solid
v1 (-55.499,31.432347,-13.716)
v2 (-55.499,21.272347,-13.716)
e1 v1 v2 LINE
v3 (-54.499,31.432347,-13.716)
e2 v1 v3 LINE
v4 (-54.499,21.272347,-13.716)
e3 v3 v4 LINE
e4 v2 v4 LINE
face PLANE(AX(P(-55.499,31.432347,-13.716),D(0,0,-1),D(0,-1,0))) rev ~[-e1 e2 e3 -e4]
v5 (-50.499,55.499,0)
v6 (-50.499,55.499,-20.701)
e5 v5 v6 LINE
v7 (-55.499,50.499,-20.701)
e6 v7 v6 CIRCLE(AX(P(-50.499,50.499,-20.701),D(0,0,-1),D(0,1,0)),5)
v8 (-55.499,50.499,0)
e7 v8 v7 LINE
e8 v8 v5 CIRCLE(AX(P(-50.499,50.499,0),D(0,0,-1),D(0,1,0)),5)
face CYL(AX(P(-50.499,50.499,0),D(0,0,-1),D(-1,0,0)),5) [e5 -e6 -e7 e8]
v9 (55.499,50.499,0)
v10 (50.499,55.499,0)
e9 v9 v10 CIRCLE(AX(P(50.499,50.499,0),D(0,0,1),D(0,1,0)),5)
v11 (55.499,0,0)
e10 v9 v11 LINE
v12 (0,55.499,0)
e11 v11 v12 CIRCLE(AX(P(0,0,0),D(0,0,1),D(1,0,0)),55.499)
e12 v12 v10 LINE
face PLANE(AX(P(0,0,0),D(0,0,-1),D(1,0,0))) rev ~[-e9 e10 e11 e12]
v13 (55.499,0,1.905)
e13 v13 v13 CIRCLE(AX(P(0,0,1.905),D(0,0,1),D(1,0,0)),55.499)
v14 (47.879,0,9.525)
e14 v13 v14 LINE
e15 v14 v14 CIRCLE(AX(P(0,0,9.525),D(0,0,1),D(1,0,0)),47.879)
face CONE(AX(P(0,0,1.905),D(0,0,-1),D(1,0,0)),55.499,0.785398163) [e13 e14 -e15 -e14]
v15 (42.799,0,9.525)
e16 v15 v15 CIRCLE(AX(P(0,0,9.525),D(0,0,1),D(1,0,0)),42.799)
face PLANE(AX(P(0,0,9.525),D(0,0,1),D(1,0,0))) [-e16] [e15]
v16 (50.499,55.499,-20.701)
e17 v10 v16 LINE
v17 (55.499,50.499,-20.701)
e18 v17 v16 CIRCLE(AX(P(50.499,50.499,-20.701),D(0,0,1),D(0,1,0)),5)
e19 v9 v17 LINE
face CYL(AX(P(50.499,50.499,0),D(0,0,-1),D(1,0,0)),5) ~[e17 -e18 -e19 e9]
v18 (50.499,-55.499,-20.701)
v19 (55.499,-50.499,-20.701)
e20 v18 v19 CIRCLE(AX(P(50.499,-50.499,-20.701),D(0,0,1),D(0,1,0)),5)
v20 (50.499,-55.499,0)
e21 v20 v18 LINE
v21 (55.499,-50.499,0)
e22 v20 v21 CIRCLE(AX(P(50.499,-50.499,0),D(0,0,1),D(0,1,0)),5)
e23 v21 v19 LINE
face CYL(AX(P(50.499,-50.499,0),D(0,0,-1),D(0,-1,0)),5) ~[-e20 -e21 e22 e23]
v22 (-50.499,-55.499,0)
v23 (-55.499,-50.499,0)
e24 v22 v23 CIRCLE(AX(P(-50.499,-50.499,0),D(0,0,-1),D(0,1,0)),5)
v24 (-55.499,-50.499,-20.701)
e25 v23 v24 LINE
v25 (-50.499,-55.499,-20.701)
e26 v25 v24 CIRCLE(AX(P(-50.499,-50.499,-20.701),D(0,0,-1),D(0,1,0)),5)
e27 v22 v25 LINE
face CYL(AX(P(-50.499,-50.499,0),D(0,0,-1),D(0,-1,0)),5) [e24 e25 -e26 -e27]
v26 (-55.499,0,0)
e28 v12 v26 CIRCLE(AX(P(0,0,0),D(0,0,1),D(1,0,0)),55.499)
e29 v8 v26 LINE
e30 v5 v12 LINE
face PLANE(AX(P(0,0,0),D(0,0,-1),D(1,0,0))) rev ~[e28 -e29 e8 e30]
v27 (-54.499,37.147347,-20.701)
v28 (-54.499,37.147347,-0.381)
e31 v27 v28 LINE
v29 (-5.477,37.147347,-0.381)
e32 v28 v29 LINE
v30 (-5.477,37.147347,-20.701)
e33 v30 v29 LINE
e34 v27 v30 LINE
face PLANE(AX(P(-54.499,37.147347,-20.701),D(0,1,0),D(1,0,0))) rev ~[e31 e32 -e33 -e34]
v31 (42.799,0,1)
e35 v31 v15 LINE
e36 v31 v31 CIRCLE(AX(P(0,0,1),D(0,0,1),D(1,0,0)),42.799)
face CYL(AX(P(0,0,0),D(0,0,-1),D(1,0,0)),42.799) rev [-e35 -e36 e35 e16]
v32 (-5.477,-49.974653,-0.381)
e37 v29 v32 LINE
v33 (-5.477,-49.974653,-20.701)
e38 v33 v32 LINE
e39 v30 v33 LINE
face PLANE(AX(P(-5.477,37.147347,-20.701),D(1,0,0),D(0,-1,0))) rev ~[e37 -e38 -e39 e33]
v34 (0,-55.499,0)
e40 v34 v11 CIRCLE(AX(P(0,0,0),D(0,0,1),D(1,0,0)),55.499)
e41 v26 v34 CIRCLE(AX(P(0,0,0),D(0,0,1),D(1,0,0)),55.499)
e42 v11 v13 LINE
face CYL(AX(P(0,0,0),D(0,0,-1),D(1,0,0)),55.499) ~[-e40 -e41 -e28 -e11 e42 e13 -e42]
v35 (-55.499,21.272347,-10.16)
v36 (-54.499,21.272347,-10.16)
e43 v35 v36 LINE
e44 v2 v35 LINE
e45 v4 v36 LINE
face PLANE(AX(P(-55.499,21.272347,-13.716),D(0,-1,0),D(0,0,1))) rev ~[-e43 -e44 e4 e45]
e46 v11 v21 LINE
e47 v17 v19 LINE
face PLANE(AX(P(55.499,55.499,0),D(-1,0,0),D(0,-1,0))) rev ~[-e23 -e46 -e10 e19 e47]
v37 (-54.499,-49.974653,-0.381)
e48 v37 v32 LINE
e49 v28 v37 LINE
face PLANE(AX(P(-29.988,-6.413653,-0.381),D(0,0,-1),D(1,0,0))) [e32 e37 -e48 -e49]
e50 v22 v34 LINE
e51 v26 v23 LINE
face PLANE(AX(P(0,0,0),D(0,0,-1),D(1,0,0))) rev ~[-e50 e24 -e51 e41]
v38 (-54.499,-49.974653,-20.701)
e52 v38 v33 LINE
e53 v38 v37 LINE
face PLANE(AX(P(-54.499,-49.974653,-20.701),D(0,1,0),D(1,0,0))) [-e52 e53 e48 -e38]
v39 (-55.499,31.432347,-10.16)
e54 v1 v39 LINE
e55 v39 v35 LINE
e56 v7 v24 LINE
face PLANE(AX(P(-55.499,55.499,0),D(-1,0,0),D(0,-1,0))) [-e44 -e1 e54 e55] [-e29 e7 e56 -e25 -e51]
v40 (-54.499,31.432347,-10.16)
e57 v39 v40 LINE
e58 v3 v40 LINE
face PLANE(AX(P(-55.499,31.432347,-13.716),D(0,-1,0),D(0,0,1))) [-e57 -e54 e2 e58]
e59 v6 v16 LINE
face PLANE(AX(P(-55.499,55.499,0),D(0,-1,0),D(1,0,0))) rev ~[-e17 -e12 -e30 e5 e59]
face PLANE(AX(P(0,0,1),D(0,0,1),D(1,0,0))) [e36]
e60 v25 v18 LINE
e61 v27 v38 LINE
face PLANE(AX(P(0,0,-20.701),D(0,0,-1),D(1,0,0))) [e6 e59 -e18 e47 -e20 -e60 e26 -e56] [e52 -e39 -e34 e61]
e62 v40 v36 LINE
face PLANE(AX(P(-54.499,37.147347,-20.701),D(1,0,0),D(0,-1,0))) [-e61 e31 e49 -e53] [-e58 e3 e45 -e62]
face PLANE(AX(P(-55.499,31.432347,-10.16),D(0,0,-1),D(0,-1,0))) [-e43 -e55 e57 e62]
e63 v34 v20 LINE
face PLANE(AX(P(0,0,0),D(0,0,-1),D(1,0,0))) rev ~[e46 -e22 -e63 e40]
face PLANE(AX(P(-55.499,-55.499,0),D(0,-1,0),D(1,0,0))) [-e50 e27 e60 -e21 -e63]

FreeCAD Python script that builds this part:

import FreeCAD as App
import Part
import Sketcher
Q = App.Units.Quantity


def edges_at(feature, points):
    """Names of the edges that pass closest to the given points."""
    edges = feature.Shape.Edges
    near = lambda p: min(range(len(edges)), key=lambda i: edges[i].distToShape(Part.Vertex(*p))[0])
    return sorted({f"Edge{near(p) + 1}" for p in points})

doc = App.newDocument("Part")
body = doc.addObject("PartDesign::Body", "Body")

# Sketch on XY plane
sketch1 = doc.addObject("Sketcher::SketchObject", "Sketch")
body.addObject(sketch1)
sketch1.AttachmentSupport = (doc.XY_Plane, [""])
sketch1.MapMode = "FlatFace"
sketch1.addGeometry([
    Part.Circle(App.Vector(0, 0, 0), App.Vector(0, 0, 1), 55.499),
    Part.Circle(App.Vector(0, 0, 0), App.Vector(0, 0, 1), 42.799),
], False)
sketch1.addConstraint([
    Sketcher.Constraint("Coincident", 0, 3, -1, 1),
    Sketcher.Constraint("Coincident", 1, 3, -1, 1),
    Sketcher.Constraint("Diameter", 0, Q("4.37 in")),
    Sketcher.Constraint("Diameter", 1, Q("3.37 in")),
])
pad1 = doc.addObject("PartDesign::Pad", "Pad")
body.addObject(pad1)
pad1.Profile = sketch1
pad1.Length = Q("0.375 in")

# Sketch on XY plane
sketch2 = doc.addObject("Sketcher::SketchObject", "Sketch001")
body.addObject(sketch2)
sketch2.AttachmentSupport = (doc.XY_Plane, [""])
sketch2.MapMode = "FlatFace"
sketch2.addGeometry([
    Part.LineSegment(App.Vector(-55.499, -55.499, 0), App.Vector(-55.499, 55.499, 0)),
    Part.LineSegment(App.Vector(-55.499, 55.499, 0), App.Vector(55.499, 55.499, 0)),
    Part.LineSegment(App.Vector(55.499, 55.499, 0), App.Vector(55.499, -55.499, 0)),
    Part.LineSegment(App.Vector(55.499, -55.499, 0), App.Vector(-55.499, -55.499, 0)),
], False)
sketch2.addConstraint([
    Sketcher.Constraint("Coincident", 0, 2, 1, 1),
    Sketcher.Constraint("Coincident", 1, 2, 2, 1),
    Sketcher.Constraint("Coincident", 2, 2, 3, 1),
    Sketcher.Constraint("Coincident", 3, 2, 0, 1),
    Sketcher.Constraint("Vertical", 0),
    Sketcher.Constraint("Horizontal", 1),
    Sketcher.Constraint("Vertical", 2),
    Sketcher.Constraint("Horizontal", 3),
    Sketcher.Constraint("Symmetric", 0, 2, 2, 2, -1, 1),
    Sketcher.Constraint("Equal", 3, 0),
    Sketcher.Constraint("DistanceX", 1, 1, 1, 2, Q("4.37 in")),
])
pad2 = doc.addObject("PartDesign::Pad", "Pad001")
body.addObject(pad2)
pad2.Profile = sketch2
pad2.Length = Q("0.815 in")
pad2.Reversed = True
doc.recompute()

chamfer = doc.addObject("PartDesign::Chamfer", "Chamfer")
body.addObject(chamfer)
chamfer.Base = (pad2, edges_at(pad2, [(-55.499, 0, 9.525)]))
chamfer.Size = Q("0.3 in")

# Sketch on XY plane
sketch3 = doc.addObject("Sketcher::SketchObject", "Sketch002")
body.addObject(sketch3)
sketch3.AttachmentSupport = (doc.XY_Plane, [""])
sketch3.MapMode = "FlatFace"
sketch3.AttachmentOffset = App.Placement(App.Vector(0, 0, -0.815 * 25.4), App.Rotation())
sketch3.addGeometry([
    Part.LineSegment(App.Vector(-54.499, -49.974653, 0), App.Vector(-54.499, 37.147347, 0)),
    Part.LineSegment(App.Vector(-54.499, 37.147347, 0), App.Vector(-5.477, 37.147347, 0)),
    Part.LineSegment(App.Vector(-5.477, 37.147347, 0), App.Vector(-5.477, -49.974653, 0)),
    Part.LineSegment(App.Vector(-5.477, -49.974653, 0), App.Vector(-54.499, -49.974653, 0)),
], False)
sketch3.addConstraint([
    Sketcher.Constraint("Coincident", 0, 2, 1, 1),
    Sketcher.Constraint("Coincident", 1, 2, 2, 1),
    Sketcher.Constraint("Coincident", 2, 2, 3, 1),
    Sketcher.Constraint("Coincident", 3, 2, 0, 1),
    Sketcher.Constraint("Vertical", 0),
    Sketcher.Constraint("Horizontal", 1),
    Sketcher.Constraint("Vertical", 2),
    Sketcher.Constraint("Horizontal", 3),
    Sketcher.Constraint("DistanceX", 1, 1, 1, 2, Q("1.93 in")),
    Sketcher.Constraint("DistanceY", 0, 1, 0, 2, Q("3.43 in")),
    Sketcher.Constraint("DistanceX", 0, 2, -1, 1, 54.499),
    Sketcher.Constraint("DistanceY", -1, 1, 0, 2, 37.147347),
])
pocket1 = doc.addObject("PartDesign::Pocket", "Pocket")
body.addObject(pocket1)
pocket1.Profile = sketch3
pocket1.Length = Q("0.8 in")
pocket1.Reversed = True

# Sketch on YZ plane
sketch4 = doc.addObject("Sketcher::SketchObject", "Sketch003")
body.addObject(sketch4)
sketch4.AttachmentSupport = (doc.YZ_Plane, [""])
sketch4.MapMode = "FlatFace"
sketch4.AttachmentOffset = App.Placement(App.Vector(0, 0, -2.185 * 25.4), App.Rotation())
sketch4.addGeometry([
    Part.LineSegment(App.Vector(31.432347, -10.16, 0), App.Vector(31.432347, -13.716, 0)),
    Part.LineSegment(App.Vector(31.432347, -13.716, 0), App.Vector(21.272347, -13.716, 0)),
    Part.LineSegment(App.Vector(21.272347, -13.716, 0), App.Vector(21.272347, -10.16, 0)),
    Part.LineSegment(App.Vector(21.272347, -10.16, 0), App.Vector(31.432347, -10.16, 0)),
], False)
sketch4.addConstraint([
    Sketcher.Constraint("Coincident", 0, 2, 1, 1),
    Sketcher.Constraint("Coincident", 1, 2, 2, 1),
    Sketcher.Constraint("Coincident", 2, 2, 3, 1),
    Sketcher.Constraint("Coincident", 3, 2, 0, 1),
    Sketcher.Constraint("Vertical", 0),
    Sketcher.Constraint("Horizontal", 1),
    Sketcher.Constraint("Vertical", 2),
    Sketcher.Constraint("Horizontal", 3),
    Sketcher.Constraint("DistanceX", 1, 2, 1, 1, Q("0.4 in")),
    Sketcher.Constraint("DistanceY", 0, 2, 0, 1, Q("0.14 in")),
    Sketcher.Constraint("DistanceY", 2, 2, -1, 1, Q("0.4 in")),
    Sketcher.Constraint("DistanceX", -1, 1, 0, 2, 31.432347),
])
pocket2 = doc.addObject("PartDesign::Pocket", "Pocket001")
body.addObject(pocket2)
pocket2.Profile = sketch4
pocket2.Length = 1
pocket2.Reversed = True
doc.recompute()

fillet = doc.addObject("PartDesign::Fillet", "Fillet")
body.addObject(fillet)
fillet.Base = (pocket2, edges_at(pocket2, [
    (-55.499, -55.499, -10.351),
    (-55.499, 55.499, -10.351),
    (55.499, -55.499, -10.351),
    (55.499, 55.499, -10.351),
]))
fillet.Radius = 5

# Sketch on XY plane
sketch5 = doc.addObject("Sketcher::SketchObject", "Sketch004")
body.addObject(sketch5)
sketch5.AttachmentSupport = (doc.XY_Plane, [""])
sketch5.MapMode = "FlatFace"
sketch5.addGeometry(Part.Circle(App.Vector(0, 0, 0), App.Vector(0, 0, 1), 42.799), False)
sketch5.addConstraint([
    Sketcher.Constraint("Coincident", 0, 3, -1, 1),
    Sketcher.Constraint("Diameter", 0, Q("3.37 in")),
])
pad3 = doc.addObject("PartDesign::Pad", "Pad002")
body.addObject(pad3)
pad3.Profile = sketch5
pad3.Length = 1

doc.recompute()
